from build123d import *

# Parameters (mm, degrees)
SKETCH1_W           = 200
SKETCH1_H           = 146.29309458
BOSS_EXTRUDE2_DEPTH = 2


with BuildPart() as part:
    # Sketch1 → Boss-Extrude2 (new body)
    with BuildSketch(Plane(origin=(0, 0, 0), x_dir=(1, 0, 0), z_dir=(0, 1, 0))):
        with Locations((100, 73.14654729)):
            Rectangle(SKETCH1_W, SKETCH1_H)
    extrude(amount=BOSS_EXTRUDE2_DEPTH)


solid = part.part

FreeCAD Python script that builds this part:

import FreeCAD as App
import Part
import Sketcher

V = App.Vector


def add_polygon(sketch, points):
    """Adds a closed chain of lines whose ends are joined by coincident constraints."""
    first, n = sketch.GeometryCount, len(points)
    for a, b in zip(points, points[1:] + points[:1]):
        sketch.addGeometry(Part.LineSegment(App.Vector(*a, 0), App.Vector(*b, 0)), False)
    for i in range(n):
        sketch.addConstraint(Sketcher.Constraint("Coincident", first + i, 2, first + (i + 1) % n, 1))

doc = App.newDocument("Part")
body = doc.addObject("PartDesign::Body", "Body")

sketch1 = body.newObject("Sketcher::SketchObject", "Sketch")
sketch1.AttachmentSupport = (doc.getObject("XZ_Plane"), [""])
sketch1.MapMode = "FlatFace"
add_polygon(sketch1, [(0, -146), (0, 0), (200, 0), (200, -146)])
sketch1.addConstraint(Sketcher.Constraint("Vertical", 0))
sketch1.addConstraint(Sketcher.Constraint("Horizontal", 1))
sketch1.addConstraint(Sketcher.Constraint("Vertical", 2))
sketch1.addConstraint(Sketcher.Constraint("Horizontal", 3))
sketch1.addConstraint(Sketcher.Constraint("Coincident", 0, 2, -1, 1))
sketch1.addConstraint(Sketcher.Constraint("DistanceX", 1, 1, 1, 2, 200.0))
sketch1.addConstraint(Sketcher.Constraint("DistanceY", 0, 1, 0, 2, 146.293095))
pad1 = body.newObject("PartDesign::Pad", "Pad")
pad1.Profile = sketch1
pad1.Length = 2
pad1.Reversed = True

doc.recompute()
